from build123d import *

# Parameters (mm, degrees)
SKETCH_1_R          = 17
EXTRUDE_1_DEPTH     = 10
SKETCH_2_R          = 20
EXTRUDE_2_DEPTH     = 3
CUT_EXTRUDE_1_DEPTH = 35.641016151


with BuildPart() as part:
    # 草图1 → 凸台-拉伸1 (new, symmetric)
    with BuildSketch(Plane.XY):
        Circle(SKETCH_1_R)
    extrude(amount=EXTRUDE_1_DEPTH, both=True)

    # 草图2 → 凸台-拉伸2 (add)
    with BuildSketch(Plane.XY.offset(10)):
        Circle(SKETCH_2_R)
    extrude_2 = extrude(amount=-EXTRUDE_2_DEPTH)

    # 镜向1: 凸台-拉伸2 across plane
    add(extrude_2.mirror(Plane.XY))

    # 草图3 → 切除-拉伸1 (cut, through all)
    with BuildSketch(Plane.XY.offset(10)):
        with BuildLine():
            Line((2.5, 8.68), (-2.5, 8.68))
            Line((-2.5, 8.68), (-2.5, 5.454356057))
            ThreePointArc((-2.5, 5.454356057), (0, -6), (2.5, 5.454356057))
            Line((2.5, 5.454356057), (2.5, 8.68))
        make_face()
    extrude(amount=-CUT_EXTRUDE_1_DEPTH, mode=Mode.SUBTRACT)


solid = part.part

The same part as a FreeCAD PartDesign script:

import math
import FreeCAD as App
import Part
import Sketcher

V = App.Vector
Q = App.Units.Quantity

doc = App.newDocument("Part")
body = doc.addObject("PartDesign::Body", "Body")

# Sketch on XY plane
sketch1 = body.newObject("Sketcher::SketchObject", "Sketch")
sketch1.AttachmentSupport = (doc.getObject("XY_Plane"), [""])
sketch1.MapMode = "FlatFace"
sketch1.addGeometry(Part.Circle(V(0, 0, 0), V(0, 0, 1), 17), False)
sketch1.addConstraint(Sketcher.Constraint("Coincident", 0, 3, -1, 1))
sketch1.addConstraint(Sketcher.Constraint("Diameter", 0, Q("34 mm")))
pad1 = body.newObject("PartDesign::Pad", "Pad")
pad1.Profile = sketch1
pad1.Length = 20
pad1.Midplane = True

# Sketch on XY plane
sketch2 = body.newObject("Sketcher::SketchObject", "Sketch001")
sketch2.AttachmentSupport = (doc.getObject("XY_Plane"), [""])
sketch2.MapMode = "FlatFace"
sketch2.AttachmentOffset = App.Placement(V(0, 0, 10), App.Rotation())
sketch2.addGeometry(Part.Circle(V(0, 0, 0), V(0, 0, 1), 20), False)
sketch2.addConstraint(Sketcher.Constraint("Coincident", 0, 3, -1, 1))
sketch2.addConstraint(Sketcher.Constraint("Diameter", 0, Q("40 mm")))
pad2 = body.newObject("PartDesign::Pad", "Pad001")
pad2.Profile = sketch2
pad2.Length = 3
pad2.Reversed = True
doc.recompute()

mirrored = body.newObject("PartDesign::Mirrored", "Mirrored")
mirrored.Originals = [pad2]
mirrored.MirrorPlane = (doc.getObject("XY_Plane"), [""])
body.Tip = mirrored

# Sketch on XY plane
sketch3 = body.newObject("Sketcher::SketchObject", "Sketch002")
sketch3.AttachmentSupport = (doc.getObject("XY_Plane"), [""])
sketch3.MapMode = "FlatFace"
sketch3.AttachmentOffset = App.Placement(V(0, 0, 10), App.Rotation())
sketch3.addGeometry(Part.LineSegment(V(2.5, 8.7, 0), V(-2.5, 8.7, 0)), False)
sketch3.addGeometry(Part.LineSegment(V(-2.5, 8.7, 0), V(-2.5, 5.5, 0)), False)
sketch3.addGeometry(Part.ArcOfCircle(Part.Circle(V(0, 0, 0), V(0, 0, 1), 6), math.radians(115), math.radians(425)), False)
sketch3.addGeometry(Part.LineSegment(V(2.5, 5.5, 0), V(2.5, 8.7, 0)), False)
sketch3.addConstraint(Sketcher.Constraint("Coincident", 0, 2, 1, 1))
sketch3.addConstraint(Sketcher.Constraint("Coincident", 1, 2, 2, 1))
sketch3.addConstraint(Sketcher.Constraint("Coincident", 2, 2, 3, 1))
sketch3.addConstraint(Sketcher.Constraint("Coincident", 3, 2, 0, 1))
sketch3.addConstraint(Sketcher.Constraint("Horizontal", 0))
sketch3.addConstraint(Sketcher.Constraint("Vertical", 1))
sketch3.addConstraint(Sketcher.Constraint("Vertical", 3))
sketch3.addConstraint(Sketcher.Constraint("Coincident", 2, 3, -1, 1))
sketch3.addConstraint(Sketcher.Constraint("Horizontal", 1, 2, 2, 2))
sketch3.addConstraint(Sketcher.Constraint("Radius", 2, Q("6 mm")))
sketch3.addConstraint(Sketcher.Constraint("DistanceX", 0, 2, 0, 1, Q("5 mm")))
sketch3.addConstraint(Sketcher.Constraint("DistanceY", -1, 1, 0, 2, Q("8.68 mm")))
pocket1 = body.newObject("PartDesign::Pocket", "Pocket")
pocket1.Profile = sketch3
pocket1.Type = "ThroughAll"

doc.recompute()
